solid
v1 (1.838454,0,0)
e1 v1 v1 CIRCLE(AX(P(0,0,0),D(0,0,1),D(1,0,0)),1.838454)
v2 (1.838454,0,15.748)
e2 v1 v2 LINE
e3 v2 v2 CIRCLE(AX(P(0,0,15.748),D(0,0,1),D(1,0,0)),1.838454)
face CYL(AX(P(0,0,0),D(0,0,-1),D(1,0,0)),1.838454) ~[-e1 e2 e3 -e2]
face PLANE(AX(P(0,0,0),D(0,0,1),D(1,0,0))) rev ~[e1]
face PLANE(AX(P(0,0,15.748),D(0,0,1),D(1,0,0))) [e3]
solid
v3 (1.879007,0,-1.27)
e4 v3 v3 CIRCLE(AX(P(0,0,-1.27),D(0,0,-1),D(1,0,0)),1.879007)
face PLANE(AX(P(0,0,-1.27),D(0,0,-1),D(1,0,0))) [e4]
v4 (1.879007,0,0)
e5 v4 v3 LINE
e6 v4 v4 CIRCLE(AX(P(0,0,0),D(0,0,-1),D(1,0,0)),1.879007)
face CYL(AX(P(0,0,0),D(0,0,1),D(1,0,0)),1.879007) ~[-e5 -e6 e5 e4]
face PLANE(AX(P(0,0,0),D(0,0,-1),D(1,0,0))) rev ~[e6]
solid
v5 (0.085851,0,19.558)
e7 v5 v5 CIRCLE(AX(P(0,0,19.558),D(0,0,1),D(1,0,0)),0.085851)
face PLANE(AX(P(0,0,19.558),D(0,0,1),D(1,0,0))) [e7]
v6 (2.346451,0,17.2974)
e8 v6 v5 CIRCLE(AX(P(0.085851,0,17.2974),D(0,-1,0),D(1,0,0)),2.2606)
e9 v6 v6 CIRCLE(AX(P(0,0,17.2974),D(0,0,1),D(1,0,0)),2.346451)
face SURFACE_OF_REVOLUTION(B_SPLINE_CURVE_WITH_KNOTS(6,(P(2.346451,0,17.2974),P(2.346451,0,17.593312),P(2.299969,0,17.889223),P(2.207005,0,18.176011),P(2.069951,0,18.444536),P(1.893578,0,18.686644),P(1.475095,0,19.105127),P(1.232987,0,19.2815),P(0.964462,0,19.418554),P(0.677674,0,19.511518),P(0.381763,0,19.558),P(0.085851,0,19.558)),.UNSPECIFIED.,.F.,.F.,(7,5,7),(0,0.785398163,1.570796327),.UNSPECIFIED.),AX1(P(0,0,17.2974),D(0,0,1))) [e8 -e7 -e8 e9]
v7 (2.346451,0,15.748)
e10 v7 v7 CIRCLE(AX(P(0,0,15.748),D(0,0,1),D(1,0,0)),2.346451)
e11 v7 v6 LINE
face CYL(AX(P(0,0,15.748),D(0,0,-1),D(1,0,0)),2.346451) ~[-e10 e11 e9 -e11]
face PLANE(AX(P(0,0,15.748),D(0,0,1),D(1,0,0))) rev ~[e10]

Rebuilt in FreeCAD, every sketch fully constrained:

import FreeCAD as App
import Part
import Sketcher
Q = App.Units.Quantity


def edges_at(feature, points):
    """Names of the edges that pass closest to the given points."""
    edges = feature.Shape.Edges
    near = lambda p: min(range(len(edges)), key=lambda i: edges[i].distToShape(Part.Vertex(*p))[0])
    return sorted({f"Edge{near(p) + 1}" for p in points})

doc = App.newDocument("Part")
body = doc.addObject("PartDesign::Body", "Body")

# Sketch on XY plane
sketch1 = body.newObject("Sketcher::SketchObject", "Sketch")
sketch1.AttachmentSupport = (doc.getObject("XY_Plane"), [""])
sketch1.MapMode = "FlatFace"
sketch1.addGeometry(Part.Circle(App.Vector(0, 0, 0), App.Vector(0, 0, 1), 1.838454), False)
sketch1.addConstraint([
    Sketcher.Constraint("Coincident", 0, 3, -1, 1),
    Sketcher.Constraint("Diameter", 0, 3.676908),
])
pad1 = body.newObject("PartDesign::Pad", "Pad")
pad1.Profile = sketch1
pad1.Length = Q("0.62 in")
body2 = doc.addObject("PartDesign::Body", "Body001")

# Sketch on XY plane
sketch2 = body2.newObject("Sketcher::SketchObject", "Sketch001")
sketch2.AttachmentSupport = (doc.getObject("XY_Plane001"), [""])
sketch2.MapMode = "FlatFace"
sketch2.AttachmentOffset = App.Placement(App.Vector(0, 0, 0.62 * 25.4), App.Rotation())
sketch2.addGeometry(Part.Circle(App.Vector(0, 0, 0), App.Vector(0, 0, 1), 2.346451), False)
sketch2.addConstraint([
    Sketcher.Constraint("Coincident", 0, 3, -1, 1),
    Sketcher.Constraint("Diameter", 0, 4.692902),
])
pad2 = body2.newObject("PartDesign::Pad", "Pad001")
pad2.Profile = sketch2
pad2.Length = Q("0.15 in")
doc.recompute()

fillet = body2.newObject("PartDesign::Fillet", "Fillet")
fillet.Base = (pad2, edges_at(pad2, [(-2.346, 0, 19.558)]))
fillet.Radius = Q("0.089 in")
body3 = doc.addObject("PartDesign::Body", "Body002")

# Sketch on XY plane
sketch3 = body3.newObject("Sketcher::SketchObject", "Sketch002")
sketch3.AttachmentSupport = (doc.getObject("XY_Plane002"), [""])
sketch3.MapMode = "FlatFace"
sketch3.addGeometry(Part.Circle(App.Vector(0, 0, 0), App.Vector(0, 0, 1), 1.879007), False)
sketch3.addConstraint([
    Sketcher.Constraint("Coincident", 0, 3, -1, 1),
    Sketcher.Constraint("Diameter", 0, 3.758014),
])
pad3 = body3.newObject("PartDesign::Pad", "Pad002")
pad3.Profile = sketch3
pad3.Length = Q("0.05 in")
pad3.Reversed = True

doc.recompute()
